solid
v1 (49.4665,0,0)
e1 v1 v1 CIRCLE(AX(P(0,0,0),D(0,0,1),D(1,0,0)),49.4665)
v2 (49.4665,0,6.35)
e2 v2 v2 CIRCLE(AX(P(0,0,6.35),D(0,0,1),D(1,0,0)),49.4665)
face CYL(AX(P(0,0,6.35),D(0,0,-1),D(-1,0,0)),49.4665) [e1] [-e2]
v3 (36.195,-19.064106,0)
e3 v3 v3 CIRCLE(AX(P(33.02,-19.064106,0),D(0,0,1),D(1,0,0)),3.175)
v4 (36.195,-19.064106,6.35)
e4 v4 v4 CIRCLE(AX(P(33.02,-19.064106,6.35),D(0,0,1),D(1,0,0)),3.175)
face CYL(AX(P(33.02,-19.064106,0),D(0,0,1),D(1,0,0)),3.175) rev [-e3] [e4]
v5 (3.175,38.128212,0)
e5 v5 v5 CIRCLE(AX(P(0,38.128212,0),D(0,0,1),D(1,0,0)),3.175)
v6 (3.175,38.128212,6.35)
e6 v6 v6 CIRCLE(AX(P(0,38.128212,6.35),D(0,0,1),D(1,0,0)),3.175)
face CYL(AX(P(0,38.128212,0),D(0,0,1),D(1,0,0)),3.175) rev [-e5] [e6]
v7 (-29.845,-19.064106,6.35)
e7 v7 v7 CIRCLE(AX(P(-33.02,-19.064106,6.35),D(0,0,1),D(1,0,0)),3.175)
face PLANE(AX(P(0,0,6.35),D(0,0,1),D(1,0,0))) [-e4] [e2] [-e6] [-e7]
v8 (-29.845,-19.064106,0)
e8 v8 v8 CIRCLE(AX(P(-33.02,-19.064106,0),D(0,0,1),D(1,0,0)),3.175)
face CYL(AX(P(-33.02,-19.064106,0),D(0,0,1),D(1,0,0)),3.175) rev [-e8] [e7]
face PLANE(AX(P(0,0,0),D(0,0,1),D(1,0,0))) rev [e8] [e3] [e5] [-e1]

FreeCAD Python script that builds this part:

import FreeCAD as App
import Part
import Sketcher
from FreeCAD import Vector
Q = App.Units.Quantity

doc = App.newDocument("Part")
body = doc.addObject("PartDesign::Body", "Body")

sketch1 = doc.addObject("Sketcher::SketchObject", "Sketch")
body.addObject(sketch1)
sketch1.AttachmentSupport = (doc.XY_Plane, [""])
sketch1.MapMode = "FlatFace"
sketch1.addGeometry(Part.Circle(Vector(0, 0, 0), Vector(0, 0, 1), 49.4665), False)
sketch1.addConstraint(Sketcher.Constraint("Coincident", 0, 3, -1, 1))
sketch1.addConstraint(Sketcher.Constraint("Diameter", 0, Q("3.895 in")))
pad1 = doc.addObject("PartDesign::Pad", "Pad")
body.addObject(pad1)
pad1.Profile = sketch1
pad1.Length = Q("0.25 in")

sketch2 = doc.addObject("Sketcher::SketchObject", "Sketch001")
body.addObject(sketch2)
sketch2.AttachmentSupport = (doc.XY_Plane, [""])
sketch2.MapMode = "FlatFace"
sketch2.AttachmentOffset = App.Placement(Vector(0, 0, 0.25 * 25.4), App.Rotation())
sketch2.addGeometry(Part.Circle(Vector(0, 38.128212, 0), Vector(0, 0, 1), 3.175), False)
sketch2.addGeometry(Part.Circle(Vector(-33.02, -19.064106, 0), Vector(0, 0, 1), 3.175), False)
sketch2.addGeometry(Part.Circle(Vector(33.02, -19.064106, 0), Vector(0, 0, 1), 3.175), False)
sketch2.addConstraint(Sketcher.Constraint("Equal", 0, 1))
sketch2.addConstraint(Sketcher.Constraint("Equal", 1, 2))
sketch2.addConstraint(Sketcher.Constraint("Symmetric", 1, 3, 2, 3, -2))
sketch2.addConstraint(Sketcher.Constraint("PointOnObject", 0, 3, -2))
sketch2.addConstraint(Sketcher.Constraint("Diameter", 0, Q("0.25 in")))
sketch2.addConstraint(Sketcher.Constraint("DistanceX", 1, 3, -1, 1, Q("1.3 in")))
sketch2.addConstraint(Sketcher.Constraint("DistanceY", -1, 1, 0, 3, Q("38.128212 mm")))
sketch2.addConstraint(Sketcher.Constraint("DistanceY", 1, 3, -1, 1, Q("19.064106 mm")))
pocket1 = doc.addObject("PartDesign::Pocket", "Pocket")
body.addObject(pocket1)
pocket1.Profile = sketch2
pocket1.Type = "ThroughAll"

doc.recompute()
